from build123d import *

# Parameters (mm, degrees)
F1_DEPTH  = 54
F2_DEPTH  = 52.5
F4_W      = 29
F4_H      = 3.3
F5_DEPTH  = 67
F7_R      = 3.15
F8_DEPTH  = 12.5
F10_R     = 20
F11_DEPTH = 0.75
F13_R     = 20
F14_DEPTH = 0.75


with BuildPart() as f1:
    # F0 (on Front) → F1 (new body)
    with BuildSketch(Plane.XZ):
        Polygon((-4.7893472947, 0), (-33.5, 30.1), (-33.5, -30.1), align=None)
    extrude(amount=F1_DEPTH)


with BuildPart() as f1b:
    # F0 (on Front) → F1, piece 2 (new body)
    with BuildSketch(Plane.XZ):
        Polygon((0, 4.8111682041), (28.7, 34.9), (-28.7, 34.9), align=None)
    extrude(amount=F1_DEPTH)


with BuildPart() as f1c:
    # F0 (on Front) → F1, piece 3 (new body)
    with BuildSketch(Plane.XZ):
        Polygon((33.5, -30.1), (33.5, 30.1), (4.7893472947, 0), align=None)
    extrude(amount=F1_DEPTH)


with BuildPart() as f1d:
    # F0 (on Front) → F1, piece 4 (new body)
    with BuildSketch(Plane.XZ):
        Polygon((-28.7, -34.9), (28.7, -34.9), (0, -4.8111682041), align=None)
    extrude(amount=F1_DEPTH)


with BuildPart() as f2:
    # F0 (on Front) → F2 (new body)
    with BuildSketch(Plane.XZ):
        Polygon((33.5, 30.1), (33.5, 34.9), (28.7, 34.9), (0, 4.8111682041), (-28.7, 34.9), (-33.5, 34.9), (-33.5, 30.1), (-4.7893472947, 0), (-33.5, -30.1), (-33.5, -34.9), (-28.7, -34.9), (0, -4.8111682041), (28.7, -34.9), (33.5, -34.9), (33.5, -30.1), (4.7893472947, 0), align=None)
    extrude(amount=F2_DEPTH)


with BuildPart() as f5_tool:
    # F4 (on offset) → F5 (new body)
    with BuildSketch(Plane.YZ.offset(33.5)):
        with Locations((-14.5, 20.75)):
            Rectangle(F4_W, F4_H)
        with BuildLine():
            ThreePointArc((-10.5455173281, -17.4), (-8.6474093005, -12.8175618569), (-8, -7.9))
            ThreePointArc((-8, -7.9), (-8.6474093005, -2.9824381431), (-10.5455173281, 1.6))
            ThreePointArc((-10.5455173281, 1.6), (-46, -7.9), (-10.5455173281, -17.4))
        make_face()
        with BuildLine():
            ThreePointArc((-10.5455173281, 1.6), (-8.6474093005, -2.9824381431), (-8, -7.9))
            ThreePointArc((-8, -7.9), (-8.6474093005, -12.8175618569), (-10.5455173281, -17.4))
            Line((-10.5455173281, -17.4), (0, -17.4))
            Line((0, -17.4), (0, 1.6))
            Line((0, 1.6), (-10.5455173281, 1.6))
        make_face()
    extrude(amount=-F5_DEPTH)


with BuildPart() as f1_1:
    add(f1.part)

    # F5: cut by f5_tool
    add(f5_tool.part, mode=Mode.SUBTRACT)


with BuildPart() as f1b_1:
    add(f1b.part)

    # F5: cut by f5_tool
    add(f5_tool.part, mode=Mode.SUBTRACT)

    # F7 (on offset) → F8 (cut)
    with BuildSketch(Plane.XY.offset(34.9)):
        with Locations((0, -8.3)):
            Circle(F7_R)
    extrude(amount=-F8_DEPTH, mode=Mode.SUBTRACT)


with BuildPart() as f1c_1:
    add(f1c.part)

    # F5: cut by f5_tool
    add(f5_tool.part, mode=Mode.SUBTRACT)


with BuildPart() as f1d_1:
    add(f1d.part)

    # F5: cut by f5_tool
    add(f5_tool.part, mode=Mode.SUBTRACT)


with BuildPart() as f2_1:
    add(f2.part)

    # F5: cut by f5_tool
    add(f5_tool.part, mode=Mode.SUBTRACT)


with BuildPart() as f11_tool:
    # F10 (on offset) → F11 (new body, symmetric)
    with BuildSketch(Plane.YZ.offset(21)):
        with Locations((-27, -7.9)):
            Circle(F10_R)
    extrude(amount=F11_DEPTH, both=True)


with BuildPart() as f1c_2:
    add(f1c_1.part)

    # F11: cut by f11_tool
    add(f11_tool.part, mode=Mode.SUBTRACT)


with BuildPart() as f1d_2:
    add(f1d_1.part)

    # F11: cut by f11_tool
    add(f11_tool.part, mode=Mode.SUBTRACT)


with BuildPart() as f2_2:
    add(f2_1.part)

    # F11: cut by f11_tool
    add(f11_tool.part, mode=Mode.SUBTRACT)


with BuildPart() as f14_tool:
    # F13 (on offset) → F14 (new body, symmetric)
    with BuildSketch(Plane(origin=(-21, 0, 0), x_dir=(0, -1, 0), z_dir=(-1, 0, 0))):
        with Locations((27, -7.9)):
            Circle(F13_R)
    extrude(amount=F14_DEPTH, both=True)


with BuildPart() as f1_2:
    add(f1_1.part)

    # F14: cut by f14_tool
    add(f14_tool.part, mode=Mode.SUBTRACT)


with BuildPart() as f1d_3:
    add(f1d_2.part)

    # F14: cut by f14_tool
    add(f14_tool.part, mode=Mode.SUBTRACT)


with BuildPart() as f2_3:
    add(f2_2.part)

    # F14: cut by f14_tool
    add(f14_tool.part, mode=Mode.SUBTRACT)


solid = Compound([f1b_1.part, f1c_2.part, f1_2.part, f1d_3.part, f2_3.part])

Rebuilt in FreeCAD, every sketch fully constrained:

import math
import FreeCAD as App
import Part
import Sketcher

V = App.Vector

doc = App.newDocument("Part")
body = doc.addObject("PartDesign::Body", "Body")

sketch1 = body.newObject("Sketcher::SketchObject", "Sketch")
sketch1.AttachmentSupport = (doc.getObject("XZ_Plane"), [""])
sketch1.MapMode = "FlatFace"
sketch1.addGeometry([
    Part.LineSegment(V(-5, 0, 0), V(-34, 30, 0)),
    Part.LineSegment(V(-34, 30, 0), V(-34, -30, 0)),
    Part.LineSegment(V(-34, -30, 0), V(-5, 0, 0)),
], False)
sketch1.addConstraint([
    Sketcher.Constraint("Coincident", 0, 2, 1, 1),
    Sketcher.Constraint("Coincident", 1, 2, 2, 1),
    Sketcher.Constraint("Coincident", 2, 2, 0, 1),
    Sketcher.Constraint("Vertical", 1),
    Sketcher.Constraint("PointOnObject", 2, 2, -1),
    Sketcher.Constraint("Equal", 0, 2),
    Sketcher.Constraint("DistanceY", 1, 2, 1, 1, 60.2),
    Sketcher.Constraint("DistanceX", 0, 2, -1, 1, 33.5),
    Sketcher.Constraint("Distance", 0, 41.597014),
])
pad1 = body.newObject("PartDesign::Pad", "Pad")
pad1.Profile = sketch1
pad1.Length = 54
body2 = doc.addObject("PartDesign::Body", "Body001")

sketch2 = body2.newObject("Sketcher::SketchObject", "Sketch001")
sketch2.AttachmentSupport = (doc.getObject("XZ_Plane001"), [""])
sketch2.MapMode = "FlatFace"
sketch2.addGeometry([
    Part.LineSegment(V(0, 5, 0), V(29, 35, 0)),
    Part.LineSegment(V(29, 35, 0), V(-29, 35, 0)),
    Part.LineSegment(V(-29, 35, 0), V(0, 5, 0)),
], False)
sketch2.addConstraint([
    Sketcher.Constraint("Coincident", 0, 2, 1, 1),
    Sketcher.Constraint("Coincident", 1, 2, 2, 1),
    Sketcher.Constraint("Coincident", 2, 2, 0, 1),
    Sketcher.Constraint("Horizontal", 1),
    Sketcher.Constraint("PointOnObject", 2, 2, -2),
    Sketcher.Constraint("Equal", 0, 2),
    Sketcher.Constraint("DistanceX", 1, 2, 1, 1, 57.4),
    Sketcher.Constraint("DistanceY", -1, 1, 0, 2, 34.9),
    Sketcher.Constraint("Distance", 0, 41.58158),
])
pad2 = body2.newObject("PartDesign::Pad", "Pad001")
pad2.Profile = sketch2
pad2.Length = 54
body3 = doc.addObject("PartDesign::Body", "Body002")

sketch3 = body3.newObject("Sketcher::SketchObject", "Sketch002")
sketch3.AttachmentSupport = (doc.getObject("XZ_Plane002"), [""])
sketch3.MapMode = "FlatFace"
sketch3.addGeometry([
    Part.LineSegment(V(34, -30, 0), V(34, 30, 0)),
    Part.LineSegment(V(34, 30, 0), V(5, 0, 0)),
    Part.LineSegment(V(5, 0, 0), V(34, -30, 0)),
], False)
sketch3.addConstraint([
    Sketcher.Constraint("Coincident", 0, 2, 1, 1),
    Sketcher.Constraint("Coincident", 1, 2, 2, 1),
    Sketcher.Constraint("Coincident", 2, 2, 0, 1),
    Sketcher.Constraint("Vertical", 0),
    Sketcher.Constraint("PointOnObject", 1, 2, -1),
    Sketcher.Constraint("Equal", 1, 2),
    Sketcher.Constraint("DistanceY", 0, 1, 0, 2, 60.2),
    Sketcher.Constraint("DistanceX", -1, 1, 0, 2, 33.5),
    Sketcher.Constraint("Distance", 1, 41.597014),
])
pad3 = body3.newObject("PartDesign::Pad", "Pad002")
pad3.Profile = sketch3
pad3.Length = 54
body4 = doc.addObject("PartDesign::Body", "Body003")

sketch4 = body4.newObject("Sketcher::SketchObject", "Sketch003")
sketch4.AttachmentSupport = (doc.getObject("XZ_Plane003"), [""])
sketch4.MapMode = "FlatFace"
sketch4.addGeometry([
    Part.LineSegment(V(-29, -35, 0), V(29, -35, 0)),
    Part.LineSegment(V(29, -35, 0), V(0, -5, 0)),
    Part.LineSegment(V(0, -5, 0), V(-29, -35, 0)),
], False)
sketch4.addConstraint([
    Sketcher.Constraint("Coincident", 0, 2, 1, 1),
    Sketcher.Constraint("Coincident", 1, 2, 2, 1),
    Sketcher.Constraint("Coincident", 2, 2, 0, 1),
    Sketcher.Constraint("Horizontal", 0),
    Sketcher.Constraint("PointOnObject", 1, 2, -2),
    Sketcher.Constraint("Equal", 1, 2),
    Sketcher.Constraint("DistanceX", 0, 1, 0, 2, 57.4),
    Sketcher.Constraint("DistanceY", 0, 2, -1, 1, 34.9),
    Sketcher.Constraint("Distance", 1, 41.58158),
])
pad4 = body4.newObject("PartDesign::Pad", "Pad003")
pad4.Profile = sketch4
pad4.Length = 54
body5 = doc.addObject("PartDesign::Body", "Body004")

sketch5 = body5.newObject("Sketcher::SketchObject", "Sketch004")
sketch5.AttachmentSupport = (doc.getObject("XZ_Plane004"), [""])
sketch5.MapMode = "FlatFace"
sketch5.addGeometry([
    Part.LineSegment(V(33.5, 30.1, 0), V(33.5, 34.9, 0)),
    Part.LineSegment(V(33.5, 34.9, 0), V(28.7, 34.9, 0)),
    Part.LineSegment(V(28.7, 34.9, 0), V(0, 4.8, 0)),
    Part.LineSegment(V(0, 4.8, 0), V(-28.7, 34.9, 0)),
    Part.LineSegment(V(-28.7, 34.9, 0), V(-33.5, 34.9, 0)),
    Part.LineSegment(V(-33.5, 34.9, 0), V(-33.5, 30.1, 0)),
    Part.LineSegment(V(-33.5, 30.1, 0), V(-4.8, 0, 0)),
    Part.LineSegment(V(-4.8, 0, 0), V(-33.5, -30.1, 0)),
    Part.LineSegment(V(-33.5, -30.1, 0), V(-33.5, -34.9, 0)),
    Part.LineSegment(V(-33.5, -34.9, 0), V(-28.7, -34.9, 0)),
    Part.LineSegment(V(-28.7, -34.9, 0), V(0, -4.8, 0)),
    Part.LineSegment(V(0, -4.8, 0), V(28.7, -34.9, 0)),
    Part.LineSegment(V(28.7, -34.9, 0), V(33.5, -34.9, 0)),
    Part.LineSegment(V(33.5, -34.9, 0), V(33.5, -30.1, 0)),
    Part.LineSegment(V(33.5, -30.1, 0), V(4.8, 0, 0)),
    Part.LineSegment(V(4.8, 0, 0), V(33.5, 30.1, 0)),
], False)
sketch5.addConstraint([
    Sketcher.Constraint("Coincident", 0, 2, 1, 1),
    Sketcher.Constraint("Coincident", 1, 2, 2, 1),
    Sketcher.Constraint("Coincident", 2, 2, 3, 1),
    Sketcher.Constraint("Coincident", 3, 2, 4, 1),
    Sketcher.Constraint("Coincident", 4, 2, 5, 1),
    Sketcher.Constraint("Coincident", 5, 2, 6, 1),
    Sketcher.Constraint("Coincident", 6, 2, 7, 1),
    Sketcher.Constraint("Coincident", 7, 2, 8, 1),
    Sketcher.Constraint("Coincident", 8, 2, 9, 1),
    Sketcher.Constraint("Coincident", 9, 2, 10, 1),
    Sketcher.Constraint("Coincident", 10, 2, 11, 1),
    Sketcher.Constraint("Coincident", 11, 2, 12, 1),
    Sketcher.Constraint("Coincident", 12, 2, 13, 1),
    Sketcher.Constraint("Coincident", 13, 2, 14, 1),
    Sketcher.Constraint("Coincident", 14, 2, 15, 1),
    Sketcher.Constraint("Coincident", 15, 2, 0, 1),
    Sketcher.Constraint("Vertical", 0),
    Sketcher.Constraint("Horizontal", 1),
    Sketcher.Constraint("Horizontal", 4),
    Sketcher.Constraint("Vertical", 5),
    Sketcher.Constraint("Vertical", 8),
    Sketcher.Constraint("Horizontal", 9),
    Sketcher.Constraint("Horizontal", 12),
    Sketcher.Constraint("Vertical", 13),
    Sketcher.Constraint("Symmetric", 0, 2, 8, 2, -1, 1),
    Sketcher.Constraint("Symmetric", 2, 2, 10, 2, -1, 1),
    Sketcher.Constraint("Symmetric", 3, 2, 11, 2, -1, 1),
    Sketcher.Constraint("Symmetric", 5, 2, 13, 2, -1, 1),
    Sketcher.Constraint("Symmetric", 6, 2, 14, 2, -1, 1),
    Sketcher.Constraint("Symmetric", 1, 2, 3, 2, -2),
    Sketcher.Constraint("Symmetric", 7, 2, 13, 2, -2),
    Sketcher.Constraint("PointOnObject", 2, 2, -2),
    Sketcher.Constraint("PointOnObject", 6, 2, -1),
    Sketcher.Constraint("Parallel", 3, 6),
    Sketcher.Constraint("Parallel", 7, 10),
    Sketcher.Constraint("Parallel", 10, 15),
    Sketcher.Constraint("Equal", 12, 0),
    Sketcher.Constraint("DistanceX", 1, 2, 1, 1, 4.8),
    Sketcher.Constraint("DistanceX", 4, 2, 0, 2, 67.0),
    Sketcher.Constraint("DistanceY", 7, 2, 4, 2, 65.0),
    Sketcher.Constraint("Distance", 2, 41.58158),
])
pad5 = body5.newObject("PartDesign::Pad", "Pad004")
pad5.Profile = sketch5
pad5.Length = 52.5
body6 = doc.addObject("PartDesign::Body", "Body005")
body6.AllowCompound = True

sketch6 = body6.newObject("Sketcher::SketchObject", "Sketch005")
sketch6.AttachmentSupport = (doc.getObject("YZ_Plane005"), [""])
sketch6.MapMode = "FlatFace"
sketch6.AttachmentOffset = App.Placement(V(0, 0, 33.5), App.Rotation())
sketch6.addGeometry([
    Part.LineSegment(V(-29, 22.4, 0), V(-29, 19.1, 0)),
    Part.LineSegment(V(-29, 19.1, 0), V(0, 19.1, 0)),
    Part.LineSegment(V(0, 19.1, 0), V(0, 22.4, 0)),
    Part.LineSegment(V(0, 22.4, 0), V(-29, 22.4, 0)),
    Part.ArcOfCircle(Part.Circle(V(-27, -7.9, 0), V(0, 0, 1), 19), math.radians(30), math.radians(330)),
    Part.LineSegment(V(-10.5, -17.4, 0), V(0, -17.4, 0)),
    Part.LineSegment(V(0, -17.4, 0), V(0, 1.6, 0)),
    Part.LineSegment(V(0, 1.6, 0), V(-10.5, 1.6, 0)),
], False)
sketch6.addConstraint([
    Sketcher.Constraint("Coincident", 0, 2, 1, 1),
    Sketcher.Constraint("Coincident", 1, 2, 2, 1),
    Sketcher.Constraint("Coincident", 2, 2, 3, 1),
    Sketcher.Constraint("Coincident", 3, 2, 0, 1),
    Sketcher.Constraint("Coincident", 4, 2, 5, 1),
    Sketcher.Constraint("Coincident", 5, 2, 6, 1),
    Sketcher.Constraint("Coincident", 6, 2, 7, 1),
    Sketcher.Constraint("Coincident", 7, 2, 4, 1),
    Sketcher.Constraint("Vertical", 0),
    Sketcher.Constraint("Horizontal", 1),
    Sketcher.Constraint("Vertical", 2),
    Sketcher.Constraint("Horizontal", 3),
    Sketcher.Constraint("Horizontal", 5),
    Sketcher.Constraint("Vertical", 6),
    Sketcher.Constraint("Horizontal", 7),
    Sketcher.Constraint("PointOnObject", 1, 2, -2),
    Sketcher.Constraint("PointOnObject", 5, 2, -2),
    Sketcher.Constraint("Vertical", 4, 2, 7, 2),
    Sketcher.Constraint("Radius", 4, 19.0),
    Sketcher.Constraint("DistanceX", 1, 1, 1, 2, 29.0),
    Sketcher.Constraint("DistanceY", 6, 1, 6, 2, 19.0),
    Sketcher.Constraint("DistanceY", 0, 2, 0, 1, 3.3),
    Sketcher.Constraint("DistanceX", 4, 3, -1, 1, 27.0),
    Sketcher.Constraint("DistanceY", 4, 3, 0, 2, 27.0),
    Sketcher.Constraint("DistanceY", 4, 3, -1, 1, 7.9),
])
pad6 = body6.newObject("PartDesign::Pad", "Pad005")
pad6.Profile = sketch6
pad6.Length = 67
pad6.Reversed = True
doc.recompute()

body7 = doc.addObject("PartDesign::Body", "Body006")
body7.BaseFeature = body6
boolean = body.newObject("PartDesign::Boolean", "Boolean")
boolean.Type = "Cut"
boolean.addObjects([body7])
doc.recompute()

body8 = doc.addObject("PartDesign::Body", "Body007")
body8.BaseFeature = body6
boolean2 = body2.newObject("PartDesign::Boolean", "Boolean001")
boolean2.Type = "Cut"
boolean2.addObjects([body8])
doc.recompute()

sketch7 = body2.newObject("Sketcher::SketchObject", "Sketch006")
sketch7.AttachmentSupport = (doc.getObject("XY_Plane001"), [""])
sketch7.MapMode = "FlatFace"
sketch7.AttachmentOffset = App.Placement(V(0, 0, 34.9), App.Rotation())
sketch7.addGeometry(Part.Circle(V(0, -8.3, 0), V(0, 0, 1), 3.1), False)
sketch7.addConstraint([
    Sketcher.Constraint("PointOnObject", 0, 3, -2),
    Sketcher.Constraint("Diameter", 0, 6.3),
    Sketcher.Constraint("DistanceY", 0, 3, -1, 1, 8.3),
])
pocket1 = body2.newObject("PartDesign::Pocket", "Pocket")
pocket1.Profile = sketch7
pocket1.Length = 12.5
doc.recompute()

body9 = doc.addObject("PartDesign::Body", "Body008")
body9.BaseFeature = body6
boolean3 = body3.newObject("PartDesign::Boolean", "Boolean002")
boolean3.Type = "Cut"
boolean3.addObjects([body9])
doc.recompute()

body10 = doc.addObject("PartDesign::Body", "Body009")
body10.BaseFeature = body6
boolean4 = body4.newObject("PartDesign::Boolean", "Boolean003")
boolean4.Type = "Cut"
boolean4.addObjects([body10])
doc.recompute()

boolean5 = body5.newObject("PartDesign::Boolean", "Boolean004")
boolean5.Type = "Cut"
boolean5.addObjects([body6])
body11 = doc.addObject("PartDesign::Body", "Body010")

sketch8 = body11.newObject("Sketcher::SketchObject", "Sketch007")
sketch8.AttachmentSupport = (doc.getObject("YZ_Plane010"), [""])
sketch8.MapMode = "FlatFace"
sketch8.AttachmentOffset = App.Placement(V(0, 0, 21), App.Rotation())
sketch8.addGeometry(Part.Circle(V(-27, -8, 0), V(0, 0, 1), 20), False)
sketch8.addConstraint([
    Sketcher.Constraint("Diameter", 0, 40.0),
    Sketcher.Constraint("DistanceX", 0, 3, -1, 1, 27.0),
    Sketcher.Constraint("DistanceY", 0, 3, -1, 1, 7.9),
])
pad7 = body11.newObject("PartDesign::Pad", "Pad006")
pad7.Profile = sketch8
pad7.Length = 1.5
pad7.Midplane = True
doc.recompute()

body12 = doc.addObject("PartDesign::Body", "Body011")
body12.BaseFeature = body11
boolean6 = body3.newObject("PartDesign::Boolean", "Boolean005")
boolean6.Type = "Cut"
boolean6.addObjects([body12])
doc.recompute()

body13 = doc.addObject("PartDesign::Body", "Body012")
body13.BaseFeature = body11
boolean7 = body4.newObject("PartDesign::Boolean", "Boolean006")
boolean7.Type = "Cut"
boolean7.addObjects([body13])
doc.recompute()

boolean8 = body5.newObject("PartDesign::Boolean", "Boolean007")
boolean8.Type = "Cut"
boolean8.addObjects([body11])
body14 = doc.addObject("PartDesign::Body", "Body013")

sketch9 = body14.newObject("Sketcher::SketchObject", "Sketch008")
sketch9.AttachmentSupport = (doc.getObject("YZ_Plane013"), [""])
sketch9.MapMode = "FlatFace"
sketch9.AttachmentOffset = App.Placement(V(0, 0, -21), App.Rotation())
sketch9.addGeometry(Part.Circle(V(-27, -8, 0), V(0, 0, 1), 20), False)
sketch9.addConstraint([
    Sketcher.Constraint("Diameter", 0, 40.0),
    Sketcher.Constraint("DistanceX", 0, 3, -1, 1, 27.0),
    Sketcher.Constraint("DistanceY", 0, 3, -1, 1, 7.9),
])
pad8 = body14.newObject("PartDesign::Pad", "Pad007")
pad8.Profile = sketch9
pad8.Length = 1.5
pad8.Midplane = True
doc.recompute()

body15 = doc.addObject("PartDesign::Body", "Body014")
body15.BaseFeature = body14
boolean9 = body.newObject("PartDesign::Boolean", "Boolean008")
boolean9.Type = "Cut"
boolean9.addObjects([body15])
doc.recompute()

body16 = doc.addObject("PartDesign::Body", "Body015")
body16.BaseFeature = body14
boolean10 = body4.newObject("PartDesign::Boolean", "Boolean009")
boolean10.Type = "Cut"
boolean10.addObjects([body16])
doc.recompute()

boolean11 = body5.newObject("PartDesign::Boolean", "Boolean010")
boolean11.Type = "Cut"
boolean11.addObjects([body14])

doc.recompute()
